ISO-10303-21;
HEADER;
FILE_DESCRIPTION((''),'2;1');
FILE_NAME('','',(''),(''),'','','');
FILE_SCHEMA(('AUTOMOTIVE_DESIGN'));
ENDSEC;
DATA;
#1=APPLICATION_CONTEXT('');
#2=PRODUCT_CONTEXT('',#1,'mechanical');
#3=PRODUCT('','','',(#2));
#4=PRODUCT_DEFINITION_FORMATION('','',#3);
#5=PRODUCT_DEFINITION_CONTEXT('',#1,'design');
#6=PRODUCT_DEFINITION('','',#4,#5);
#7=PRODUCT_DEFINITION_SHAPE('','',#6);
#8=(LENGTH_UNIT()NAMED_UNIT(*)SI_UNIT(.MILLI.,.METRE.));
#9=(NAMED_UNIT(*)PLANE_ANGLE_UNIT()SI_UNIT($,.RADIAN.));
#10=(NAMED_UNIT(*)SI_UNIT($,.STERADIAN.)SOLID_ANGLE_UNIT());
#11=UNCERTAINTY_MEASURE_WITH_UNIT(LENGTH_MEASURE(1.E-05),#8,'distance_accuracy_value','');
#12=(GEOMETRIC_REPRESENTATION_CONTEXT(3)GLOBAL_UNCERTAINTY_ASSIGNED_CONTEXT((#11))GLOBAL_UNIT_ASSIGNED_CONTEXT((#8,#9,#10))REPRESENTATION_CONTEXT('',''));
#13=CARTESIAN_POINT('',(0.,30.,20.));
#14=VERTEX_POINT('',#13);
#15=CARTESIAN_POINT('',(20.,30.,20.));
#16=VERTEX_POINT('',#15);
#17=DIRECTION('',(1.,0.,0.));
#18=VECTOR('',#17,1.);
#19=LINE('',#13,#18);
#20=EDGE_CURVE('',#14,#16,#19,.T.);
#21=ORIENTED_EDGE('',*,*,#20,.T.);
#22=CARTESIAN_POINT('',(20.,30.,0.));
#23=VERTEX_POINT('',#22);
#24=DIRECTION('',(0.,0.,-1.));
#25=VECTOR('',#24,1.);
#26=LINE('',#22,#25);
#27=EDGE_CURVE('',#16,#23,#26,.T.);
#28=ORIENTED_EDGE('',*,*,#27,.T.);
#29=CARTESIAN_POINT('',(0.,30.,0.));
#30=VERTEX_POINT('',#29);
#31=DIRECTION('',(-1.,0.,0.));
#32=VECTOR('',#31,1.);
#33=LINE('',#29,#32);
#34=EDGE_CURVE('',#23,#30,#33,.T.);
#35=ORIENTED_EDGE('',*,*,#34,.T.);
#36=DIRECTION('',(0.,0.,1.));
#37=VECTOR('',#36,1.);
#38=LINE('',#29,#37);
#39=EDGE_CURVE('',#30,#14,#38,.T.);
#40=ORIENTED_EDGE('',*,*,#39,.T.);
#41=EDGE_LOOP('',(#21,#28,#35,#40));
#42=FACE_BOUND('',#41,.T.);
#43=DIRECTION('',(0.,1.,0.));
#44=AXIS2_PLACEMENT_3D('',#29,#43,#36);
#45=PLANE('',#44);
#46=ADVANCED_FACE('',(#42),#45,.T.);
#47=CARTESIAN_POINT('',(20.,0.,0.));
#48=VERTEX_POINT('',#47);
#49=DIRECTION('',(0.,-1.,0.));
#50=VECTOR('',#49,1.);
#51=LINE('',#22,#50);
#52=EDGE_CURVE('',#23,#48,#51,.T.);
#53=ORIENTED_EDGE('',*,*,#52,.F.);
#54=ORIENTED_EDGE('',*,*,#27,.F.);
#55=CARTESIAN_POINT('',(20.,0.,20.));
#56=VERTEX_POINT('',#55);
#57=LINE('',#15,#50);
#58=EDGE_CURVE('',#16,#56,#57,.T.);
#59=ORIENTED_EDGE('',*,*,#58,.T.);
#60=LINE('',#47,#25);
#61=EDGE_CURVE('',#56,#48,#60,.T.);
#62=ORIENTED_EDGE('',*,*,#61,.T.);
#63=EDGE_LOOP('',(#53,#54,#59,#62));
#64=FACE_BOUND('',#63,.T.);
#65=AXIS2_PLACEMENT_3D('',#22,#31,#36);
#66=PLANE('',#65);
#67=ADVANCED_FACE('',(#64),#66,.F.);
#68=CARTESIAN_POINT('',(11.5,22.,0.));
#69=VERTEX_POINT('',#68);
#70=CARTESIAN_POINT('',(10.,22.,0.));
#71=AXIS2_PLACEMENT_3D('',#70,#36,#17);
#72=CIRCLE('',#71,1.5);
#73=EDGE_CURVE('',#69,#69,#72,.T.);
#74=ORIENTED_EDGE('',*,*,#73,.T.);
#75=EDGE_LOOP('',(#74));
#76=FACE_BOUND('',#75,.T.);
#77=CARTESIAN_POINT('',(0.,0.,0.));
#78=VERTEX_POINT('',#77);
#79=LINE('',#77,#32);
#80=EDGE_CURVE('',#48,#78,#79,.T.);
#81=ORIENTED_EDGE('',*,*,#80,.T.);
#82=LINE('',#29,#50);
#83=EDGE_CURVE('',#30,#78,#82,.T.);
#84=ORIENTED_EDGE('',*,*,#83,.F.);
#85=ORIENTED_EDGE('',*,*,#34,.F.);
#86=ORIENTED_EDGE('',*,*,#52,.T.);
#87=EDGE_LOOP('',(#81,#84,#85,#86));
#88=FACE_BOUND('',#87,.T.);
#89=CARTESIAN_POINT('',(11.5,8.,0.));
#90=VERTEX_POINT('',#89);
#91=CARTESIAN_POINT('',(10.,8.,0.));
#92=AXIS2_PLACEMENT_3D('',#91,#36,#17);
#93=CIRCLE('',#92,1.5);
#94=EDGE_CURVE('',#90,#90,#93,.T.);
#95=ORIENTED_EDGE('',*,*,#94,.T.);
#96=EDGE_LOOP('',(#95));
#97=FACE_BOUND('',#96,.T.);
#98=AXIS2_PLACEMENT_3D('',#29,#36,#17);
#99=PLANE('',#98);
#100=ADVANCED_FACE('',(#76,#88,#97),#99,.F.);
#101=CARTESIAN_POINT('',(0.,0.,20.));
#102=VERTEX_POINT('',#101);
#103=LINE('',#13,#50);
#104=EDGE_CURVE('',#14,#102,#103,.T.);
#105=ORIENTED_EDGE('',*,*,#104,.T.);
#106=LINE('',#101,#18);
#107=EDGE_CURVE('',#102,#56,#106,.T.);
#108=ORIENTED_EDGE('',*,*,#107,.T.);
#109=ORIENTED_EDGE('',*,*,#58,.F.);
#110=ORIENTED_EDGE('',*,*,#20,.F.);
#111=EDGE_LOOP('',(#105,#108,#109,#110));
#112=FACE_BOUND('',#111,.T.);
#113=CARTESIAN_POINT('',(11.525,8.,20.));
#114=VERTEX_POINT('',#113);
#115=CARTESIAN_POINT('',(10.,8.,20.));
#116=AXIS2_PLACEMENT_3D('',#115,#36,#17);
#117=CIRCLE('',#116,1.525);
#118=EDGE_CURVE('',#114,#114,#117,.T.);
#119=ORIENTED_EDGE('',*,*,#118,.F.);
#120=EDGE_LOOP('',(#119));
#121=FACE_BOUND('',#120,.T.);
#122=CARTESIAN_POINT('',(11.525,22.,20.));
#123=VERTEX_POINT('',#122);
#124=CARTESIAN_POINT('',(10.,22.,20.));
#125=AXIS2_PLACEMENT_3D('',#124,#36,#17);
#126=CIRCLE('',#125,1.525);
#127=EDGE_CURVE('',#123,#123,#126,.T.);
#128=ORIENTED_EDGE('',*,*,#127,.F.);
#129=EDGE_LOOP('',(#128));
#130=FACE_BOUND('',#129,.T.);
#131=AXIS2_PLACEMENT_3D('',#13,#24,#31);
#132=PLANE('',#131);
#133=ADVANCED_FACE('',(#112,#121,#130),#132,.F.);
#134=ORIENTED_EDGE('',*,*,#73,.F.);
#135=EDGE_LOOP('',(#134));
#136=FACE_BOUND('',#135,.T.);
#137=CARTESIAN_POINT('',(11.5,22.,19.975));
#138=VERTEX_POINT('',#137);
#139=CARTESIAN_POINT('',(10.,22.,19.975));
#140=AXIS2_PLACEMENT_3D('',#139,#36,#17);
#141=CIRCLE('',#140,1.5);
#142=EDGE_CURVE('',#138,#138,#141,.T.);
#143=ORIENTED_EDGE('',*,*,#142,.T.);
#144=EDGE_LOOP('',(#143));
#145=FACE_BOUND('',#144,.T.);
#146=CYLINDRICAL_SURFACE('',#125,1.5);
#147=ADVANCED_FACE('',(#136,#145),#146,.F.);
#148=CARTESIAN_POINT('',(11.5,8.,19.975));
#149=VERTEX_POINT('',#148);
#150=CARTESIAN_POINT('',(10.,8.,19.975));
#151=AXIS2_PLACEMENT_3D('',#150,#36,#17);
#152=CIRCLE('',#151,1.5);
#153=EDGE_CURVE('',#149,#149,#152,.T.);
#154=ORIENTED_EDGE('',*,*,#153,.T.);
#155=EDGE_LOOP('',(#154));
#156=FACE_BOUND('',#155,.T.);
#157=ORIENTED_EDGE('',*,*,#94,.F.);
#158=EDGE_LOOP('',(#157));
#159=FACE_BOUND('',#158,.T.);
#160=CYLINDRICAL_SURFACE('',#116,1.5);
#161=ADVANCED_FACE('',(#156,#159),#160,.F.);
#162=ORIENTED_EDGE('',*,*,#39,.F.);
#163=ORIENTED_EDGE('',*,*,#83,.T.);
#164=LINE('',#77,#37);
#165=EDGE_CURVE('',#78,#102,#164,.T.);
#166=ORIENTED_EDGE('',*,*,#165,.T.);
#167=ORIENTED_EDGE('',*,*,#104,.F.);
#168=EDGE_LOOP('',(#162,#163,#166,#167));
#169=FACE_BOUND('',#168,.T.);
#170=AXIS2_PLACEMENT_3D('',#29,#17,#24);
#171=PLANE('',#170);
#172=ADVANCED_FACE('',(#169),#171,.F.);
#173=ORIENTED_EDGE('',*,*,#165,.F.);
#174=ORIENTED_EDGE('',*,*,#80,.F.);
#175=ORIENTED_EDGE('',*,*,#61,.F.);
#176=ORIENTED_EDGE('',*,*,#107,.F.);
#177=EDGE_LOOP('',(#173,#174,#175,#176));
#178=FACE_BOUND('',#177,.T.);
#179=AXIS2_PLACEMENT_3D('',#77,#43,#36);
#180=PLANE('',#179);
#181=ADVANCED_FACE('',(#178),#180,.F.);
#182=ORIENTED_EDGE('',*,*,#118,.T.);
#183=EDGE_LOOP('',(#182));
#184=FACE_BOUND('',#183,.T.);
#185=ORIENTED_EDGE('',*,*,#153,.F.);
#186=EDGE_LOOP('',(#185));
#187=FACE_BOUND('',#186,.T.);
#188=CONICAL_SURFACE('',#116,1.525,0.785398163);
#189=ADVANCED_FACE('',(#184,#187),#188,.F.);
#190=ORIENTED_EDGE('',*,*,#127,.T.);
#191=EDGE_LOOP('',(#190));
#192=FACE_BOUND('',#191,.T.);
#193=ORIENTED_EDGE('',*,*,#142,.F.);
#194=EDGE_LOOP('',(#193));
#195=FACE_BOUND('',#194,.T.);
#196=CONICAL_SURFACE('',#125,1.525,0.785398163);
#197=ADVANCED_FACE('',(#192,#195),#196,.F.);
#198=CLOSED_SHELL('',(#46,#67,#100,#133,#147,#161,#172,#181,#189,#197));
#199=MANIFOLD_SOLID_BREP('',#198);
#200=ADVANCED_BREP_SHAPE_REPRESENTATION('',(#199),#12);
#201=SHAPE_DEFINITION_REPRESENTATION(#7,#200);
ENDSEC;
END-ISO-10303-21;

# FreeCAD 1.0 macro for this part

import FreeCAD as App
import Part
import Sketcher
from FreeCAD import Vector

doc = App.newDocument("Part")
body = doc.addObject("PartDesign::Body", "Body")

# Sketch on XZ plane
sketch1 = body.newObject("Sketcher::SketchObject", "Sketch")
sketch1.AttachmentSupport = (doc.getObject("XZ_Plane"), [""])
sketch1.MapMode = "FlatFace"
sketch1.addGeometry(Part.LineSegment(Vector(0, 0, 0), Vector(0, 20, 0)), False)
sketch1.addGeometry(Part.LineSegment(Vector(0, 20, 0), Vector(20, 20, 0)), False)
sketch1.addGeometry(Part.LineSegment(Vector(20, 20, 0), Vector(20, 0, 0)), False)
sketch1.addGeometry(Part.LineSegment(Vector(20, 0, 0), Vector(0, 0, 0)), False)
sketch1.addConstraint(Sketcher.Constraint("Coincident", 0, 2, 1, 1))
sketch1.addConstraint(Sketcher.Constraint("Coincident", 1, 2, 2, 1))
sketch1.addConstraint(Sketcher.Constraint("Coincident", 2, 2, 3, 1))
sketch1.addConstraint(Sketcher.Constraint("Coincident", 3, 2, 0, 1))
sketch1.addConstraint(Sketcher.Constraint("Vertical", 0))
sketch1.addConstraint(Sketcher.Constraint("Horizontal", 1))
sketch1.addConstraint(Sketcher.Constraint("Vertical", 2))
sketch1.addConstraint(Sketcher.Constraint("Horizontal", 3))
sketch1.addConstraint(Sketcher.Constraint("Coincident", 3, 2, -1, 1))
sketch1.addConstraint(Sketcher.Constraint("Equal", 3, 0))
sketch1.addConstraint(Sketcher.Constraint("DistanceX", 1, 1, 1, 2, 20.0))
pad1 = body.newObject("PartDesign::Pad", "Pad")
pad1.Profile = sketch1
pad1.Length = 30
pad1.Reversed = True

# Sketch on XY plane
sketch2 = body.newObject("Sketcher::SketchObject", "Sketch001")
sketch2.AttachmentSupport = (doc.getObject("XY_Plane"), [""])
sketch2.MapMode = "FlatFace"
sketch2.AttachmentOffset = App.Placement(Vector(0, 0, 20), App.Rotation())
sketch2.addGeometry(Part.Circle(Vector(10, 8, 0), Vector(0, 0, 1), 1.5), False)
sketch2.addConstraint(Sketcher.Constraint("Diameter", 0, 3.0))
sketch2.addConstraint(Sketcher.Constraint("DistanceX", -1, 1, 0, 3, 10.0))
sketch2.addConstraint(Sketcher.Constraint("DistanceY", -1, 1, 0, 3, 8.0))
doc.recompute()
hole = body.newObject("PartDesign::Hole", "Hole")
hole.Profile = sketch2
hole.ThreadType = "None"
hole.Diameter = 3
hole.DepthType = "Dimension"
hole.Depth = 20
hole.DrillPoint = "Angled"
hole.DrillPointAngle = 118
hole.HoleCutType = "Countersink"
hole.HoleCutDiameter = 3.05
hole.HoleCutCountersinkAngle = 90

# Sketch on XY plane
sketch3 = body.newObject("Sketcher::SketchObject", "Sketch002")
sketch3.AttachmentSupport = (doc.getObject("XY_Plane"), [""])
sketch3.MapMode = "FlatFace"
sketch3.AttachmentOffset = App.Placement(Vector(0, 0, 20), App.Rotation())
sketch3.addGeometry(Part.Circle(Vector(10, 22, 0), Vector(0, 0, 1), 1.5), False)
sketch3.addConstraint(Sketcher.Constraint("Diameter", 0, 3.0))
sketch3.addConstraint(Sketcher.Constraint("DistanceX", -1, 1, 0, 3, 10.0))
sketch3.addConstraint(Sketcher.Constraint("DistanceY", -1, 1, 0, 3, 22.0))
doc.recompute()
hole2 = body.newObject("PartDesign::Hole", "Hole001")
hole2.Profile = sketch3
hole2.ThreadType = "None"
hole2.Diameter = 3
hole2.DepthType = "Dimension"
hole2.Depth = 20
hole2.DrillPoint = "Angled"
hole2.DrillPointAngle = 118
hole2.HoleCutType = "Countersink"
hole2.HoleCutDiameter = 3.05
hole2.HoleCutCountersinkAngle = 90

doc.recompute()
